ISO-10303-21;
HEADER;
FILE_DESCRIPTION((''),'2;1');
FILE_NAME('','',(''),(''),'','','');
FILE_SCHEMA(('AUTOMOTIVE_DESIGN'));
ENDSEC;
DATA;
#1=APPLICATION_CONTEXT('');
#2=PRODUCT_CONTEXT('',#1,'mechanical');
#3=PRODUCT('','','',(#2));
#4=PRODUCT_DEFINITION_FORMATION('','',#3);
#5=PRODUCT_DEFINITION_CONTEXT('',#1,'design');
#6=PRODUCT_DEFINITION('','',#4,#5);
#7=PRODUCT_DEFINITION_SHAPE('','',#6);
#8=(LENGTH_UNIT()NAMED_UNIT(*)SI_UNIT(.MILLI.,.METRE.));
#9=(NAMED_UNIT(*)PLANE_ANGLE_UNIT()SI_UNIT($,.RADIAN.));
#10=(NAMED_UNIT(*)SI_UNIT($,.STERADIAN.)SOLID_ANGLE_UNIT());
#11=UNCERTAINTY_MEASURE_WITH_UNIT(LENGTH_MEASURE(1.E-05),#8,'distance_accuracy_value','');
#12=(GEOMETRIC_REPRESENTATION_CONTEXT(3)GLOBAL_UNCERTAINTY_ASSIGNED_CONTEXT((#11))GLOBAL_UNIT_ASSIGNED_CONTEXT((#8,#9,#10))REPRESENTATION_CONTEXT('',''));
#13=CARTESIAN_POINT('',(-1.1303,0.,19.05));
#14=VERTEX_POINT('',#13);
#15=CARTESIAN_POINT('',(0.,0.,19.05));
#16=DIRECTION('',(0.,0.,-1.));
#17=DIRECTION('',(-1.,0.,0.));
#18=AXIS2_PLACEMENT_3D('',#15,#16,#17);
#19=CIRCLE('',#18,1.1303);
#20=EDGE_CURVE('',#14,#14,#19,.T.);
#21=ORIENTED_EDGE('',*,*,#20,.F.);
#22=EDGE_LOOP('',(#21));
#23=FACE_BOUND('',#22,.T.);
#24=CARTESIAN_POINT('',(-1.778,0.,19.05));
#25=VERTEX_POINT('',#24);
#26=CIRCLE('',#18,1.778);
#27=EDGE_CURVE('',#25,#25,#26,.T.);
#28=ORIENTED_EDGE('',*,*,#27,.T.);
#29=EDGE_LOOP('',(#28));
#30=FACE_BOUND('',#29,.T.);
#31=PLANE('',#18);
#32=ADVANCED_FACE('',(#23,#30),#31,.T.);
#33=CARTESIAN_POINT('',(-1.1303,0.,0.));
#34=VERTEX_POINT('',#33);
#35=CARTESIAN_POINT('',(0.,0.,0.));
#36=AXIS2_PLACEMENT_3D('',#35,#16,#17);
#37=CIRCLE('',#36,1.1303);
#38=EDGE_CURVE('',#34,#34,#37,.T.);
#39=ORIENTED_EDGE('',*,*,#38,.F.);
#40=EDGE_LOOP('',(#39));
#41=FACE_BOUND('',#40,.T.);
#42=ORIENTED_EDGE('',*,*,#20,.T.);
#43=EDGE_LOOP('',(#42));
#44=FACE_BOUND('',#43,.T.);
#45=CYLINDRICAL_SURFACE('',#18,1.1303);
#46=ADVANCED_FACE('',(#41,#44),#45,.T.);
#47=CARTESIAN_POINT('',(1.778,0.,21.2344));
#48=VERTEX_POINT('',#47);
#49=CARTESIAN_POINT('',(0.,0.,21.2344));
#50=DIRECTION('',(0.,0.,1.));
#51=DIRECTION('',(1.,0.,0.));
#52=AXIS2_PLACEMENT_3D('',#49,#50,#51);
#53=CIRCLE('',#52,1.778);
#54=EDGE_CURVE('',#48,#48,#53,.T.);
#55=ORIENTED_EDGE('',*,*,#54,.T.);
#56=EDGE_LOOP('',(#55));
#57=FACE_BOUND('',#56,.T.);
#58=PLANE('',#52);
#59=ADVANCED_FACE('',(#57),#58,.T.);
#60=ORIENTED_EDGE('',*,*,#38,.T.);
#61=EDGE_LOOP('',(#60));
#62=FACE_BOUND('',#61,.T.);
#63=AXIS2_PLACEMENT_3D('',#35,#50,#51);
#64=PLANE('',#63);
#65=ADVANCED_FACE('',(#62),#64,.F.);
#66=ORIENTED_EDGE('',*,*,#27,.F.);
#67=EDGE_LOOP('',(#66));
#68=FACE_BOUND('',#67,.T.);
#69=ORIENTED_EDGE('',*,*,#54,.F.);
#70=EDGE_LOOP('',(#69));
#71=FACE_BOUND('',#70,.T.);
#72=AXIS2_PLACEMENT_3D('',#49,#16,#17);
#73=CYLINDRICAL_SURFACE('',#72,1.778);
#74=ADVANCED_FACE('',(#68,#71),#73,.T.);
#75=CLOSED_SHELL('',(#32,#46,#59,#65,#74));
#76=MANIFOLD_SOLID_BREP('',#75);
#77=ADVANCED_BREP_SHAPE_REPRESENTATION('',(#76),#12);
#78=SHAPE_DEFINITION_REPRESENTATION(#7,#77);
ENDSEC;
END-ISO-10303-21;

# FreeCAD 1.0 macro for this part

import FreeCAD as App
import Part
import Sketcher
Q = App.Units.Quantity

doc = App.newDocument("Part")
body = doc.addObject("PartDesign::Body", "Body")

sketch1 = body.newObject("Sketcher::SketchObject", "Sketch")
sketch1.AttachmentSupport = (doc.getObject("XY_Plane"), [""])
sketch1.MapMode = "FlatFace"
sketch1.addGeometry(Part.Circle(App.Vector(0, 0, 0), App.Vector(0, 0, 1), 1.8), False)
sketch1.addConstraint(Sketcher.Constraint("Coincident", 0, 3, -1, 1))
sketch1.addConstraint(Sketcher.Constraint("Diameter", 0, Q("0.14 in")))
pad1 = body.newObject("PartDesign::Pad", "Pad")
pad1.Profile = sketch1
pad1.Length = Q("0.836 in")

sketch2 = body.newObject("Sketcher::SketchObject", "Sketch001")
sketch2.AttachmentSupport = (doc.getObject("XY_Plane"), [""])
sketch2.MapMode = "FlatFace"
sketch2.addGeometry(Part.LineSegment(App.Vector(5, 5, 0), App.Vector(5, -5, 0)), False)
sketch2.addGeometry(Part.LineSegment(App.Vector(5, -5, 0), App.Vector(-5, -5, 0)), False)
sketch2.addGeometry(Part.LineSegment(App.Vector(-5, -5, 0), App.Vector(-5, 5, 0)), False)
sketch2.addGeometry(Part.LineSegment(App.Vector(-5, 5, 0), App.Vector(5, 5, 0)), False)
sketch2.addGeometry(Part.Circle(App.Vector(0, 0, 0), App.Vector(0, 0, 1), 1.1), False)
sketch2.addConstraint(Sketcher.Constraint("Coincident", 0, 2, 1, 1))
sketch2.addConstraint(Sketcher.Constraint("Coincident", 1, 2, 2, 1))
sketch2.addConstraint(Sketcher.Constraint("Coincident", 2, 2, 3, 1))
sketch2.addConstraint(Sketcher.Constraint("Coincident", 3, 2, 0, 1))
sketch2.addConstraint(Sketcher.Constraint("Vertical", 0))
sketch2.addConstraint(Sketcher.Constraint("Horizontal", 1))
sketch2.addConstraint(Sketcher.Constraint("Vertical", 2))
sketch2.addConstraint(Sketcher.Constraint("Horizontal", 3))
sketch2.addConstraint(Sketcher.Constraint("Coincident", 4, 3, -1, 1))
sketch2.addConstraint(Sketcher.Constraint("Symmetric", 0, 2, 2, 2, -1, 1))
sketch2.addConstraint(Sketcher.Constraint("Equal", 3, 0))
sketch2.addConstraint(Sketcher.Constraint("Diameter", 4, Q("0.089 in")))
sketch2.addConstraint(Sketcher.Constraint("DistanceX", 1, 2, 1, 1, Q("9.92 mm")))
pocket1 = body.newObject("PartDesign::Pocket", "Pocket")
pocket1.Profile = sketch2
pocket1.Length = Q("0.75 in")
pocket1.Reversed = True

doc.recompute()
